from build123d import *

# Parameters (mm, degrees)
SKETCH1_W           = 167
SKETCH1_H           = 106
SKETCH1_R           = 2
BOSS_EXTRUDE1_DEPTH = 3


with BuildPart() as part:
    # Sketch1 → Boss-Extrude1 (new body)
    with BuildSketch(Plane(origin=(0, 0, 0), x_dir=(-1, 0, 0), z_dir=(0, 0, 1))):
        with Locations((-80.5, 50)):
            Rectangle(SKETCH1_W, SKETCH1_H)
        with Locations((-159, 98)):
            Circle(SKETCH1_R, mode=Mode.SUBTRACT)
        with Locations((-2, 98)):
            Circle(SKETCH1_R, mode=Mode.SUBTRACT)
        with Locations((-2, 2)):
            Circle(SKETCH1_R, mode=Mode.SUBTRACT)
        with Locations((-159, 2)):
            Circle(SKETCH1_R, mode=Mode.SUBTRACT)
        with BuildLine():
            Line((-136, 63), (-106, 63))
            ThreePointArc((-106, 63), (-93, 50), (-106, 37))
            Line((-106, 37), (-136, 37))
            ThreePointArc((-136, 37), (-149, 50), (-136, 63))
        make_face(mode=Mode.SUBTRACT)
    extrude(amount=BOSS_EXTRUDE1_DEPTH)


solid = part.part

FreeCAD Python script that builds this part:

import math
import FreeCAD as App
import Part
import Sketcher
from FreeCAD import Vector
Q = App.Units.Quantity


def add_polygon(sketch, points):
    """Adds a closed chain of lines whose ends are joined by coincident constraints."""
    first, n = sketch.GeometryCount, len(points)
    for a, b in zip(points, points[1:] + points[:1]):
        sketch.addGeometry(Part.LineSegment(App.Vector(*a, 0), App.Vector(*b, 0)), False)
    for i in range(n):
        sketch.addConstraint(Sketcher.Constraint("Coincident", first + i, 2, first + (i + 1) % n, 1))

doc = App.newDocument("Part")
body = doc.addObject("PartDesign::Body", "Body")

sketch1 = body.newObject("Sketcher::SketchObject", "Sketch")
sketch1.AttachmentSupport = (doc.getObject("XY_Plane"), [""])
sketch1.MapMode = "FlatFace"
add_polygon(sketch1, [(164, -103), (164, 3), (-3, 3), (-3, -103)])
sketch1.addGeometry(Part.Circle(Vector(159, -2, 0), Vector(0, 0, 1), 2), False)
sketch1.addGeometry(Part.Circle(Vector(2, -2, 0), Vector(0, 0, 1), 2), False)
sketch1.addGeometry(Part.ArcOfCircle(Part.Circle(Vector(136, -50, 0), Vector(0, 0, 1), 13), math.radians(-90), math.radians(90)), False)
sketch1.addGeometry(Part.LineSegment(Vector(136, -63, 0), Vector(106, -63, 0)), False)
sketch1.addGeometry(Part.ArcOfCircle(Part.Circle(Vector(106, -50, 0), Vector(0, 0, 1), 13), math.radians(90), math.radians(270)), False)
sketch1.addGeometry(Part.LineSegment(Vector(106, -37, 0), Vector(136, -37, 0)), False)
sketch1.addGeometry(Part.Circle(Vector(159, -98, 0), Vector(0, 0, 1), 2), False)
sketch1.addGeometry(Part.Circle(Vector(2, -98, 0), Vector(0, 0, 1), 2), False)
sketch1.addConstraint([
    Sketcher.Constraint("Tangent", 6, 1, 7, 1),
    Sketcher.Constraint("Tangent", 7, 2, 8, 2),
    Sketcher.Constraint("Tangent", 8, 1, 9, 1),
    Sketcher.Constraint("Tangent", 9, 2, 6, 2),
    Sketcher.Constraint("Vertical", 0),
    Sketcher.Constraint("Horizontal", 1),
    Sketcher.Constraint("Vertical", 2),
    Sketcher.Constraint("Horizontal", 3),
    Sketcher.Constraint("Horizontal", 7),
    Sketcher.Constraint("Horizontal", 9),
    Sketcher.Constraint("Equal", 4, 5),
    Sketcher.Constraint("Equal", 5, 10),
    Sketcher.Constraint("Equal", 10, 11),
    Sketcher.Constraint("Horizontal", 4, 3, 5, 3),
    Sketcher.Constraint("Horizontal", 10, 3, 11, 3),
    Sketcher.Constraint("Vertical", 4, 3, 10, 3),
    Sketcher.Constraint("Vertical", 5, 3, 11, 3),
    Sketcher.Constraint("Diameter", 4, Q("4 mm")),
    Sketcher.Constraint("Radius", 6, Q("13 mm")),
    Sketcher.Constraint("DistanceX", 1, 2, 1, 1, Q("167 mm")),
    Sketcher.Constraint("DistanceX", 7, 2, 7, 1, Q("30 mm")),
    Sketcher.Constraint("DistanceY", 0, 1, 0, 2, Q("106 mm")),
    Sketcher.Constraint("DistanceX", -1, 1, 4, 3, Q("159 mm")),
    Sketcher.Constraint("DistanceY", 4, 3, -1, 1, Q("2 mm")),
    Sketcher.Constraint("DistanceX", -1, 1, 5, 3, Q("2 mm")),
    Sketcher.Constraint("DistanceX", -1, 1, 6, 3, Q("136 mm")),
    Sketcher.Constraint("DistanceY", 6, 3, -1, 1, Q("50 mm")),
    Sketcher.Constraint("DistanceY", 10, 3, -1, 1, Q("98 mm")),
    Sketcher.Constraint("DistanceX", -1, 1, 0, 2, Q("164 mm")),
    Sketcher.Constraint("DistanceY", -1, 1, 0, 2, Q("3 mm")),
])
pad1 = body.newObject("PartDesign::Pad", "Pad")
pad1.Profile = sketch1
pad1.Length = 3

doc.recompute()
